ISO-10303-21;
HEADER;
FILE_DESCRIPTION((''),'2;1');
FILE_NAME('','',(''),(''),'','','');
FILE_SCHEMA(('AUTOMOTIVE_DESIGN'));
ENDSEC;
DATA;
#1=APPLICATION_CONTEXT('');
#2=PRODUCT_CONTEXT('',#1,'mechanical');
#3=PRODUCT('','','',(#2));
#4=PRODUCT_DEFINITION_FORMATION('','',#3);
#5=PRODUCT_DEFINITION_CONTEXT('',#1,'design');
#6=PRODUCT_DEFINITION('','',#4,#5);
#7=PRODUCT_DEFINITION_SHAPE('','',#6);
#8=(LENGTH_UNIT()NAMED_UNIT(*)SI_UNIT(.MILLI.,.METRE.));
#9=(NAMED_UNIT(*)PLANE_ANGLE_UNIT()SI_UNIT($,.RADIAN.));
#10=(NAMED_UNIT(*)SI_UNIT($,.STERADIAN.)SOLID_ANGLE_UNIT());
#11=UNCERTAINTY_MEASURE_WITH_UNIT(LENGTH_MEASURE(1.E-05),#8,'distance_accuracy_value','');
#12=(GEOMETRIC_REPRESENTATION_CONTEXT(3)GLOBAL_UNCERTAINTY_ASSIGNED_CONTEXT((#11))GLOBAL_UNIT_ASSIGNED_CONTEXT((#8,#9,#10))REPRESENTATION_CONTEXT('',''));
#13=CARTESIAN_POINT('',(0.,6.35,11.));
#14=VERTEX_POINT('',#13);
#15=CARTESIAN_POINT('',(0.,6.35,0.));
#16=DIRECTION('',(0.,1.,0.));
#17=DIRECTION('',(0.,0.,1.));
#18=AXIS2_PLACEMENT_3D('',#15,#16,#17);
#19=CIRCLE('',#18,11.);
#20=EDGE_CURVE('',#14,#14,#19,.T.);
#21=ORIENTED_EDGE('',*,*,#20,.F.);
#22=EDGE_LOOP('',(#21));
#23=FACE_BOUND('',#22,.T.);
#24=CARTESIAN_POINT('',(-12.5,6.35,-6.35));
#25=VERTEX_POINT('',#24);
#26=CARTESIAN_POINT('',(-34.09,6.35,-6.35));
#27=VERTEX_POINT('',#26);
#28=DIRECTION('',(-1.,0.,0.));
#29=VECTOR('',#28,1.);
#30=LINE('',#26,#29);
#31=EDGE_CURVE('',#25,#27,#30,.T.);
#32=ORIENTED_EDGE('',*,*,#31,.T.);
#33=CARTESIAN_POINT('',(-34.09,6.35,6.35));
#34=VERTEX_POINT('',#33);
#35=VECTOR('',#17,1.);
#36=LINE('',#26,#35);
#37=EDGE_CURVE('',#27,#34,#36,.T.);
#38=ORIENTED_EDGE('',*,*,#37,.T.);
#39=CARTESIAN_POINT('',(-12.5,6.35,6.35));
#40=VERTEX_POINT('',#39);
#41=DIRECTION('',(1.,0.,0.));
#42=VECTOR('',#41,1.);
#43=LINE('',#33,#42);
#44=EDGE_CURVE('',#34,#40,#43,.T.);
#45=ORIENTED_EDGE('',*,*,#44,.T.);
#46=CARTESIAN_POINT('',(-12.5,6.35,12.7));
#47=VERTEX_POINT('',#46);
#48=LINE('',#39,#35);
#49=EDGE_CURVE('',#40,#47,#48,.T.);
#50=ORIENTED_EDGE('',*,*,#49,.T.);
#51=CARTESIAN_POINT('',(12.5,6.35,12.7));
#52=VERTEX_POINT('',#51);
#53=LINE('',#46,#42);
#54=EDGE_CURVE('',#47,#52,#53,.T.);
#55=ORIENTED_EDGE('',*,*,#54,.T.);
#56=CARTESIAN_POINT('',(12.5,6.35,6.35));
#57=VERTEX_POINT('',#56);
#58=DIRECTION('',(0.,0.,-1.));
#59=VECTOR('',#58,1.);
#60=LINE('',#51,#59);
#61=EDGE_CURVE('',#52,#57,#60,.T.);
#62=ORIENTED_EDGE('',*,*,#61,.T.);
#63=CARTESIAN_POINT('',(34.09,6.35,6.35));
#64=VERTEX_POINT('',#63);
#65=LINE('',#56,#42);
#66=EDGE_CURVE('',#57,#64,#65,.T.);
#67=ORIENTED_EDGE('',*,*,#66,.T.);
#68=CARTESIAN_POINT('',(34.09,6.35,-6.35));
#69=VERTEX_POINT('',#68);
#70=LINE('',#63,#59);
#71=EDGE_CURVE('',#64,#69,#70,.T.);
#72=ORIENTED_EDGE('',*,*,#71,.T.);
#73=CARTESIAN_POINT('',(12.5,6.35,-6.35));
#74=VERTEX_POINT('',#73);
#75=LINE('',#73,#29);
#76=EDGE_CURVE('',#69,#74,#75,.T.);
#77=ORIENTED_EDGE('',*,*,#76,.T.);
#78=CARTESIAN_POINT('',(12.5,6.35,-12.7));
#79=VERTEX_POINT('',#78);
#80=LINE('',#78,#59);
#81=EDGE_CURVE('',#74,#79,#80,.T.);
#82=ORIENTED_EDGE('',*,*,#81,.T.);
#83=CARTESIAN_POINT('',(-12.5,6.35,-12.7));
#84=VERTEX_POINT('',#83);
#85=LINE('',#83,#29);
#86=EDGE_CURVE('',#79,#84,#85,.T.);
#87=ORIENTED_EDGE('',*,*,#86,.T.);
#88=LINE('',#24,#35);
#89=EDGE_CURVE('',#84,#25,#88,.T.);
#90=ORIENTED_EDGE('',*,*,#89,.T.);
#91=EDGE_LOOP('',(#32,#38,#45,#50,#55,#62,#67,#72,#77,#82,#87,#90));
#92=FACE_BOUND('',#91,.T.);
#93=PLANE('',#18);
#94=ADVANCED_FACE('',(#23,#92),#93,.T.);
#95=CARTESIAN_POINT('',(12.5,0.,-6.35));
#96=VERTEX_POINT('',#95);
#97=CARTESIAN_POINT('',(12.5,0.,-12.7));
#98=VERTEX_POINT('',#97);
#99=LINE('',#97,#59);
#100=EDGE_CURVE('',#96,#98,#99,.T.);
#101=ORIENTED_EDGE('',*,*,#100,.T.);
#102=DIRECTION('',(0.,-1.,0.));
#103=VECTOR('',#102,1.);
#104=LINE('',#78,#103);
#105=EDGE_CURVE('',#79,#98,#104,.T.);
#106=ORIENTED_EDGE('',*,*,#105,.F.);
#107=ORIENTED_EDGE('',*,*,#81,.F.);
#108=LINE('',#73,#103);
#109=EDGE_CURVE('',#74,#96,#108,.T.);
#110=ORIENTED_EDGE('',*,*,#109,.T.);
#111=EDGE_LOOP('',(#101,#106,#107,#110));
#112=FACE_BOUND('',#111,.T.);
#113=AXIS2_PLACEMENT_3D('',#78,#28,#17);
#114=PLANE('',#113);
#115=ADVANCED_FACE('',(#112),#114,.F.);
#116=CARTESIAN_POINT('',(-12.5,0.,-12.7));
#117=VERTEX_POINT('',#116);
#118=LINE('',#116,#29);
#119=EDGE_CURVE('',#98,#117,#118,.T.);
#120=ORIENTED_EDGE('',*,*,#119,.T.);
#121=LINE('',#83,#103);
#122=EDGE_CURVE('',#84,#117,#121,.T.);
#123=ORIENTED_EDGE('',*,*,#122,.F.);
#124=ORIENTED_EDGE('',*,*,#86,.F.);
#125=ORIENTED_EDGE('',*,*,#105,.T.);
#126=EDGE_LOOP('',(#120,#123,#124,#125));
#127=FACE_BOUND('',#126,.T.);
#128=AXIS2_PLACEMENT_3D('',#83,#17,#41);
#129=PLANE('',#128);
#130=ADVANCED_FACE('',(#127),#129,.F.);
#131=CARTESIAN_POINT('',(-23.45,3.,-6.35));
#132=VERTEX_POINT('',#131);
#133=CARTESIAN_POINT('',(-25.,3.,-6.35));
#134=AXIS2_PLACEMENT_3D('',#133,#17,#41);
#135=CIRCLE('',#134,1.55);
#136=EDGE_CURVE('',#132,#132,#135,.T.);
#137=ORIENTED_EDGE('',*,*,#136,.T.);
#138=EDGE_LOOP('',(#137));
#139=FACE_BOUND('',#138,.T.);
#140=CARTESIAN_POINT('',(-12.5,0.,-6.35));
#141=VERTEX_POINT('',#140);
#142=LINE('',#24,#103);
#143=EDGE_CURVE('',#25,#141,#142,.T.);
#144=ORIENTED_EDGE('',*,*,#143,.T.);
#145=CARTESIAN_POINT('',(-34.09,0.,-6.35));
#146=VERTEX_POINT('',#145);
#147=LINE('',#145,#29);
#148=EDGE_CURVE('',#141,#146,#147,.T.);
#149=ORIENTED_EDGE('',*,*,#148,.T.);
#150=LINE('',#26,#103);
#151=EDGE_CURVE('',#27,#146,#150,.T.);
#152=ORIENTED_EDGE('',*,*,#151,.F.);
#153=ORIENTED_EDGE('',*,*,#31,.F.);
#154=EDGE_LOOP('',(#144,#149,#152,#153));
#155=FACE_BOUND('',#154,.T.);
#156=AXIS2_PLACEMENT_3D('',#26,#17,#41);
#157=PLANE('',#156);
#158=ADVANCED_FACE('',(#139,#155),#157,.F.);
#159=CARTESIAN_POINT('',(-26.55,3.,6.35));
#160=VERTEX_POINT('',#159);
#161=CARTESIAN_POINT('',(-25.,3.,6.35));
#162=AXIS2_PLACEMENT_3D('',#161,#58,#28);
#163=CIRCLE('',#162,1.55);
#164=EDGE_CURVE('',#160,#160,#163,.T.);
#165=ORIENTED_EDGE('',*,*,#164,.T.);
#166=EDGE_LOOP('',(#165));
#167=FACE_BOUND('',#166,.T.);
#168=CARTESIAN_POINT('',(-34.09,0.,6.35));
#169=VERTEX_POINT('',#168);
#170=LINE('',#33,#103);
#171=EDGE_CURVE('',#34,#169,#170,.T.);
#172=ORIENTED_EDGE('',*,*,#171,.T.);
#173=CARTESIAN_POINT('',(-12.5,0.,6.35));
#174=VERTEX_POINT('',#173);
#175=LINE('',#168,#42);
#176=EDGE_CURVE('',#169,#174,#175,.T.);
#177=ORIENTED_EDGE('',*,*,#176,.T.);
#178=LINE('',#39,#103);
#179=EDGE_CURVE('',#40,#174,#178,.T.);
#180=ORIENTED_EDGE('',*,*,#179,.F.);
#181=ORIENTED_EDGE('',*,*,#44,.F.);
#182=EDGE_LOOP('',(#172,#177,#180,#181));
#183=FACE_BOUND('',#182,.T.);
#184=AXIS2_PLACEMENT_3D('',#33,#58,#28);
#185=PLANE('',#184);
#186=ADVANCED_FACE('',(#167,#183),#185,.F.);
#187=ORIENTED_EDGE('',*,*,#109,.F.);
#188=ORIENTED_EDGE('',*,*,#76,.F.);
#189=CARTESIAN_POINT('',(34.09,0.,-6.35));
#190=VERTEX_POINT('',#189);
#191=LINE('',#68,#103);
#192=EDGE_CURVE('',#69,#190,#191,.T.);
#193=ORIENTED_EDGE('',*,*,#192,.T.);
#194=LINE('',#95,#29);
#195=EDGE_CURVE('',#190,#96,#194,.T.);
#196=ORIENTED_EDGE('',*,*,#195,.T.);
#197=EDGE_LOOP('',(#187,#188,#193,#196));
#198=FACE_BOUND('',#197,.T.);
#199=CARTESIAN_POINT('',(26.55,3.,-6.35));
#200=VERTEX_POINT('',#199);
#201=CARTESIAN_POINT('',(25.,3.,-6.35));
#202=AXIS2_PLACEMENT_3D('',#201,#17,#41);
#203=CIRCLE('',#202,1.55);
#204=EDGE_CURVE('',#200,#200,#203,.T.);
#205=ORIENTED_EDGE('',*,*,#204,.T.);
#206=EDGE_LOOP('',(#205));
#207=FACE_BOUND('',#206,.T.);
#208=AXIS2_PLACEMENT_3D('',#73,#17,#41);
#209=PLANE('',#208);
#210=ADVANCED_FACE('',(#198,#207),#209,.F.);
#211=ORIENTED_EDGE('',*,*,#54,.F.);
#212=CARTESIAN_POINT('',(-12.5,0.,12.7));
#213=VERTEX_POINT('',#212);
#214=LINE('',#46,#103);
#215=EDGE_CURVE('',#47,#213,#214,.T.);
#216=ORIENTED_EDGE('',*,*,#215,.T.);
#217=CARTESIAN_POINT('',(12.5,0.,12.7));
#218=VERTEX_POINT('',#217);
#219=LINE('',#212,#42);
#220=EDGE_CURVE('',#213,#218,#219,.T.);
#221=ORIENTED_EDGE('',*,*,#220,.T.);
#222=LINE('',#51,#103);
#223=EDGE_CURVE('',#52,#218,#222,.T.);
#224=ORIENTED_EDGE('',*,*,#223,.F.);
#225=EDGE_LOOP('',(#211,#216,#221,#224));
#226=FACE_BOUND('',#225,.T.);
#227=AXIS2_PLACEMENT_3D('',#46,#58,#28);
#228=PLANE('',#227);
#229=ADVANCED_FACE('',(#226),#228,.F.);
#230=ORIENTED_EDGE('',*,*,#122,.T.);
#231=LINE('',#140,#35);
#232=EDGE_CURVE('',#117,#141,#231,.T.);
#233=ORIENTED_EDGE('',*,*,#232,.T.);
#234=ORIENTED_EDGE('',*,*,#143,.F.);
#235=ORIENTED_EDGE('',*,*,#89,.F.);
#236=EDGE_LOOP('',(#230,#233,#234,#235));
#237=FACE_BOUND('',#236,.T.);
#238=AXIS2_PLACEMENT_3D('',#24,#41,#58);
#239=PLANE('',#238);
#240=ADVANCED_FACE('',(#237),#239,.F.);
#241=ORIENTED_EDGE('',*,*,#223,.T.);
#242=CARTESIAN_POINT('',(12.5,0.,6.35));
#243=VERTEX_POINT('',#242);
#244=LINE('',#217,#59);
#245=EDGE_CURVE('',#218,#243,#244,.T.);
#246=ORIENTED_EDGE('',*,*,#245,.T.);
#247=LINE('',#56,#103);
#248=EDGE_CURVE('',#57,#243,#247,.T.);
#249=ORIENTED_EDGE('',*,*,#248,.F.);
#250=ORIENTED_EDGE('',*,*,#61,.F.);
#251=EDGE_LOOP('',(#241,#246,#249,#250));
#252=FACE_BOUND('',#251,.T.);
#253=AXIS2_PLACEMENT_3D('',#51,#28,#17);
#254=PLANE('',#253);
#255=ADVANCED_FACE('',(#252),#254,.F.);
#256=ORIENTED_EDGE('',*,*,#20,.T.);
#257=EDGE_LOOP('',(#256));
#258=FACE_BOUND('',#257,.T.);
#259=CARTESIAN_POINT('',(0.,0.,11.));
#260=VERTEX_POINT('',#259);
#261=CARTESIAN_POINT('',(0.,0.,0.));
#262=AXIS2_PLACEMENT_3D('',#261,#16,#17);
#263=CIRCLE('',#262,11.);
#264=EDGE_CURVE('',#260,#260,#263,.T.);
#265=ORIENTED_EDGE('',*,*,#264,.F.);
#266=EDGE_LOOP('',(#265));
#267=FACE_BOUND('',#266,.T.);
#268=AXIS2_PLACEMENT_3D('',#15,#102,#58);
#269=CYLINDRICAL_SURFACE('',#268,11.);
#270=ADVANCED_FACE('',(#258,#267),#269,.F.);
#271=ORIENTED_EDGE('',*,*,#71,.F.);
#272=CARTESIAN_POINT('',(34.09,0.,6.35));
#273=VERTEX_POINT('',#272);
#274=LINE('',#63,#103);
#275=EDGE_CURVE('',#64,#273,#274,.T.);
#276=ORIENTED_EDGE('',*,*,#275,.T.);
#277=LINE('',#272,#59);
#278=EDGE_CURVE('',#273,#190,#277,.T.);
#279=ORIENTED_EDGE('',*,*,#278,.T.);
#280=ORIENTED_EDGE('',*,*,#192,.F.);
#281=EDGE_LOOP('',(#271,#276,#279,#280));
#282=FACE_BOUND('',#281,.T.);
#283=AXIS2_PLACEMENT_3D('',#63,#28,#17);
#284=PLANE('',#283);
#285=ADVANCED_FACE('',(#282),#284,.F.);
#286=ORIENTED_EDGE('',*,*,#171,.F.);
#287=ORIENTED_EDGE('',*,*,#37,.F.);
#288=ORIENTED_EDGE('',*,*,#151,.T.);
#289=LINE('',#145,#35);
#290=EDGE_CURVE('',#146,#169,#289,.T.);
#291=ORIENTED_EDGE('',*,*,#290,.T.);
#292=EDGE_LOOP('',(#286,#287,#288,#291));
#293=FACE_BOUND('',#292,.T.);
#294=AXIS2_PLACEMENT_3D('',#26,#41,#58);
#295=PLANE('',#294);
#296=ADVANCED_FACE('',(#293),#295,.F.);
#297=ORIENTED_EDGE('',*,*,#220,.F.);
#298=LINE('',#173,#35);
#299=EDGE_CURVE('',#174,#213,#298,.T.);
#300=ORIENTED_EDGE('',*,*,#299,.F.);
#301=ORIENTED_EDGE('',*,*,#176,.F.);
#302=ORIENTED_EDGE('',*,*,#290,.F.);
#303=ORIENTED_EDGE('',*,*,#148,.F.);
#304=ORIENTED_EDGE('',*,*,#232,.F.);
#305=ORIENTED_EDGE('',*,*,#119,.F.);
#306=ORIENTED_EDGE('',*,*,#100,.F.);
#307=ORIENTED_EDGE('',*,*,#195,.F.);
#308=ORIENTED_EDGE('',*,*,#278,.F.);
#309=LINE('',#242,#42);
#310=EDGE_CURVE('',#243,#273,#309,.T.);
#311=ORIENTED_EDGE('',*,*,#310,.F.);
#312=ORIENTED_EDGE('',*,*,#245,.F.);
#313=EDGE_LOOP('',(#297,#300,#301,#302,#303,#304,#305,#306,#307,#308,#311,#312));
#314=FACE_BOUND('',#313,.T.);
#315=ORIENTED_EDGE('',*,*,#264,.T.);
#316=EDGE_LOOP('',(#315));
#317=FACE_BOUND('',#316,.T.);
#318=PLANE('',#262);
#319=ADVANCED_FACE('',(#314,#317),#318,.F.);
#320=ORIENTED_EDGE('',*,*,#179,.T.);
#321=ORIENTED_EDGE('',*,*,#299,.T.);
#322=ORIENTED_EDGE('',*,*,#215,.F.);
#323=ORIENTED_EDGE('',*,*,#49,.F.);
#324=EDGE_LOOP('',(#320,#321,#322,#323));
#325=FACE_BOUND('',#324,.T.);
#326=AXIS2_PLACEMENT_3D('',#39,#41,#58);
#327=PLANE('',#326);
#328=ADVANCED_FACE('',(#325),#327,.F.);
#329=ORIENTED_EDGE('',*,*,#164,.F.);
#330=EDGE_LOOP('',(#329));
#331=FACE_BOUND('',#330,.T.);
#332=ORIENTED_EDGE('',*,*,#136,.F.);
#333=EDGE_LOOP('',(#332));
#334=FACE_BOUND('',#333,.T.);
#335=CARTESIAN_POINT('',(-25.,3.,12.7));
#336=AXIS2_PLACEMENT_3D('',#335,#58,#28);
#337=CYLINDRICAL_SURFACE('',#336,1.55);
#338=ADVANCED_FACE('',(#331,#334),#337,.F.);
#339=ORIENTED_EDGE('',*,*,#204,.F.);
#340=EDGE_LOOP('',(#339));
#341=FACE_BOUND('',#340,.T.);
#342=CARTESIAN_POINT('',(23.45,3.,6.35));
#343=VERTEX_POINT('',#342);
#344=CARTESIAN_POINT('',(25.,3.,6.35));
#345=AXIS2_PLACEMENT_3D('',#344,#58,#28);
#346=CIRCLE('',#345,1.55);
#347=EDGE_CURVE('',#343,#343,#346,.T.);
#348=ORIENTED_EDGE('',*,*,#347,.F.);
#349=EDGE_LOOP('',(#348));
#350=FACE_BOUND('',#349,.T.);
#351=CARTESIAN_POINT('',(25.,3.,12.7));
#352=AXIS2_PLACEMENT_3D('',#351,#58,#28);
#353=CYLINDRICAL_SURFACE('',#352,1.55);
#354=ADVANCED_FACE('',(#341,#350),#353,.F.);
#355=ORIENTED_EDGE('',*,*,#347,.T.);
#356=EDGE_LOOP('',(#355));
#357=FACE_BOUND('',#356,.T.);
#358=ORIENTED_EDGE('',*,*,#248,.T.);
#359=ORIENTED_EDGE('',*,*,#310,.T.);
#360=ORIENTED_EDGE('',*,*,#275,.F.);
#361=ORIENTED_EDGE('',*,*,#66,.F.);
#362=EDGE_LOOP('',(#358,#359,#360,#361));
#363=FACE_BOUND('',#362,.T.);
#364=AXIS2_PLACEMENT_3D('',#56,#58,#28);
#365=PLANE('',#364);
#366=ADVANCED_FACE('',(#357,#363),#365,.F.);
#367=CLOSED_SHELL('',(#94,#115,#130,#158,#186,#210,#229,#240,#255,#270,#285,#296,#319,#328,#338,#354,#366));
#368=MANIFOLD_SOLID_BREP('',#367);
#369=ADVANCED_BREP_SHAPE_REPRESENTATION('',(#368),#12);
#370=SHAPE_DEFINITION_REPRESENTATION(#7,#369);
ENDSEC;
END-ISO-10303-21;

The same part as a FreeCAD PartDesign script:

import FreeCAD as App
import Part
import Sketcher
from FreeCAD import Vector
Q = App.Units.Quantity

doc = App.newDocument("Part")
body = doc.addObject("PartDesign::Body", "Body")

# Sketch on XZ plane
sketch1 = doc.addObject("Sketcher::SketchObject", "Sketch")
body.addObject(sketch1)
sketch1.AttachmentSupport = (doc.XZ_Plane, [""])
sketch1.MapMode = "FlatFace"
sketch1.addGeometry([
    Part.LineSegment(Vector(-12.5, -6.35, 0), Vector(-34.09, -6.35, 0)),  # 0
    Part.LineSegment(Vector(-34.09, -6.35, 0), Vector(-34.09, 6.35, 0)),  # 1
    Part.LineSegment(Vector(-34.09, 6.35, 0), Vector(-12.5, 6.35, 0)),  # 2
    Part.LineSegment(Vector(-12.5, 6.35, 0), Vector(-12.5, 12.7, 0)),  # 3
    Part.LineSegment(Vector(-12.5, 12.7, 0), Vector(12.5, 12.7, 0)),  # 4
    Part.LineSegment(Vector(12.5, 12.7, 0), Vector(12.5, 6.35, 0)),  # 5
    Part.LineSegment(Vector(12.5, 6.35, 0), Vector(34.09, 6.35, 0)),  # 6
    Part.LineSegment(Vector(34.09, 6.35, 0), Vector(34.09, -6.35, 0)),  # 7
    Part.LineSegment(Vector(34.09, -6.35, 0), Vector(12.5, -6.35, 0)),  # 8
    Part.LineSegment(Vector(12.5, -6.35, 0), Vector(12.5, -12.7, 0)),  # 9
    Part.LineSegment(Vector(12.5, -12.7, 0), Vector(-12.5, -12.7, 0)),  # 10
    Part.LineSegment(Vector(-12.5, -12.7, 0), Vector(-12.5, -6.35, 0)),  # 11
    Part.Circle(Vector(0, 0, 0), Vector(0, 0, 1), 11),  # 12
], False)
sketch1.addConstraint([
    Sketcher.Constraint("Coincident", 0, 2, 1, 1),
    Sketcher.Constraint("Coincident", 1, 2, 2, 1),
    Sketcher.Constraint("Coincident", 2, 2, 3, 1),
    Sketcher.Constraint("Coincident", 3, 2, 4, 1),
    Sketcher.Constraint("Coincident", 4, 2, 5, 1),
    Sketcher.Constraint("Coincident", 5, 2, 6, 1),
    Sketcher.Constraint("Coincident", 6, 2, 7, 1),
    Sketcher.Constraint("Coincident", 7, 2, 8, 1),
    Sketcher.Constraint("Coincident", 8, 2, 9, 1),
    Sketcher.Constraint("Coincident", 9, 2, 10, 1),
    Sketcher.Constraint("Coincident", 10, 2, 11, 1),
    Sketcher.Constraint("Coincident", 11, 2, 0, 1),
    Sketcher.Constraint("Horizontal", 0),
    Sketcher.Constraint("Vertical", 1),
    Sketcher.Constraint("Horizontal", 2),
    Sketcher.Constraint("Vertical", 3),
    Sketcher.Constraint("Horizontal", 4),
    Sketcher.Constraint("Vertical", 5),
    Sketcher.Constraint("Horizontal", 6),
    Sketcher.Constraint("Vertical", 7),
    Sketcher.Constraint("Horizontal", 8),
    Sketcher.Constraint("Vertical", 9),
    Sketcher.Constraint("Horizontal", 10),
    Sketcher.Constraint("Vertical", 11),
    Sketcher.Constraint("Coincident", 12, 3, -1, 1),
    Sketcher.Constraint("Symmetric", 0, 2, 6, 2, -1, 1),
    Sketcher.Constraint("Symmetric", 2, 2, 8, 2, -1, 1),
    Sketcher.Constraint("Symmetric", 4, 2, 10, 2, -1, 1),
    Sketcher.Constraint("Symmetric", 2, 2, 5, 2, -2),
    Sketcher.Constraint("Diameter", 12, Q("22 mm")),
    Sketcher.Constraint("DistanceX", 4, 1, 4, 2, Q("25 mm")),
    Sketcher.Constraint("DistanceY", 1, 1, 1, 2, Q("12.7 mm")),
    Sketcher.Constraint("DistanceX", 0, 2, 0, 1, Q("21.59 mm")),
    Sketcher.Constraint("DistanceY", 3, 1, 3, 2, Q("6.35 mm")),
])
pad1 = doc.addObject("PartDesign::Pad", "Pad")
body.addObject(pad1)
pad1.Profile = sketch1
pad1.Length = 6.35
pad1.Reversed = True

# Sketch on XY plane
sketch2 = doc.addObject("Sketcher::SketchObject", "Sketch001")
body.addObject(sketch2)
sketch2.AttachmentSupport = (doc.XY_Plane, [""])
sketch2.MapMode = "FlatFace"
sketch2.AttachmentOffset = App.Placement(Vector(0, 0, -6.35), App.Rotation())
sketch2.addGeometry([
    Part.Circle(Vector(-25, 3, 0), Vector(0, 0, 1), 1.55),
    Part.Circle(Vector(25, 3, 0), Vector(0, 0, 1), 1.55),
], False)
sketch2.addConstraint([
    Sketcher.Constraint("Equal", 0, 1),
    Sketcher.Constraint("Symmetric", 0, 3, 1, 3, -2),
    Sketcher.Constraint("Diameter", 0, Q("3.1 mm")),
    Sketcher.Constraint("DistanceX", 0, 3, -1, 1, Q("25 mm")),
    Sketcher.Constraint("DistanceY", -1, 1, 0, 3, Q("3 mm")),
])
pocket1 = doc.addObject("PartDesign::Pocket", "Pocket")
body.addObject(pocket1)
pocket1.Profile = sketch2
pocket1.Type = "ThroughAll"
pocket1.Midplane = True

doc.recompute()
